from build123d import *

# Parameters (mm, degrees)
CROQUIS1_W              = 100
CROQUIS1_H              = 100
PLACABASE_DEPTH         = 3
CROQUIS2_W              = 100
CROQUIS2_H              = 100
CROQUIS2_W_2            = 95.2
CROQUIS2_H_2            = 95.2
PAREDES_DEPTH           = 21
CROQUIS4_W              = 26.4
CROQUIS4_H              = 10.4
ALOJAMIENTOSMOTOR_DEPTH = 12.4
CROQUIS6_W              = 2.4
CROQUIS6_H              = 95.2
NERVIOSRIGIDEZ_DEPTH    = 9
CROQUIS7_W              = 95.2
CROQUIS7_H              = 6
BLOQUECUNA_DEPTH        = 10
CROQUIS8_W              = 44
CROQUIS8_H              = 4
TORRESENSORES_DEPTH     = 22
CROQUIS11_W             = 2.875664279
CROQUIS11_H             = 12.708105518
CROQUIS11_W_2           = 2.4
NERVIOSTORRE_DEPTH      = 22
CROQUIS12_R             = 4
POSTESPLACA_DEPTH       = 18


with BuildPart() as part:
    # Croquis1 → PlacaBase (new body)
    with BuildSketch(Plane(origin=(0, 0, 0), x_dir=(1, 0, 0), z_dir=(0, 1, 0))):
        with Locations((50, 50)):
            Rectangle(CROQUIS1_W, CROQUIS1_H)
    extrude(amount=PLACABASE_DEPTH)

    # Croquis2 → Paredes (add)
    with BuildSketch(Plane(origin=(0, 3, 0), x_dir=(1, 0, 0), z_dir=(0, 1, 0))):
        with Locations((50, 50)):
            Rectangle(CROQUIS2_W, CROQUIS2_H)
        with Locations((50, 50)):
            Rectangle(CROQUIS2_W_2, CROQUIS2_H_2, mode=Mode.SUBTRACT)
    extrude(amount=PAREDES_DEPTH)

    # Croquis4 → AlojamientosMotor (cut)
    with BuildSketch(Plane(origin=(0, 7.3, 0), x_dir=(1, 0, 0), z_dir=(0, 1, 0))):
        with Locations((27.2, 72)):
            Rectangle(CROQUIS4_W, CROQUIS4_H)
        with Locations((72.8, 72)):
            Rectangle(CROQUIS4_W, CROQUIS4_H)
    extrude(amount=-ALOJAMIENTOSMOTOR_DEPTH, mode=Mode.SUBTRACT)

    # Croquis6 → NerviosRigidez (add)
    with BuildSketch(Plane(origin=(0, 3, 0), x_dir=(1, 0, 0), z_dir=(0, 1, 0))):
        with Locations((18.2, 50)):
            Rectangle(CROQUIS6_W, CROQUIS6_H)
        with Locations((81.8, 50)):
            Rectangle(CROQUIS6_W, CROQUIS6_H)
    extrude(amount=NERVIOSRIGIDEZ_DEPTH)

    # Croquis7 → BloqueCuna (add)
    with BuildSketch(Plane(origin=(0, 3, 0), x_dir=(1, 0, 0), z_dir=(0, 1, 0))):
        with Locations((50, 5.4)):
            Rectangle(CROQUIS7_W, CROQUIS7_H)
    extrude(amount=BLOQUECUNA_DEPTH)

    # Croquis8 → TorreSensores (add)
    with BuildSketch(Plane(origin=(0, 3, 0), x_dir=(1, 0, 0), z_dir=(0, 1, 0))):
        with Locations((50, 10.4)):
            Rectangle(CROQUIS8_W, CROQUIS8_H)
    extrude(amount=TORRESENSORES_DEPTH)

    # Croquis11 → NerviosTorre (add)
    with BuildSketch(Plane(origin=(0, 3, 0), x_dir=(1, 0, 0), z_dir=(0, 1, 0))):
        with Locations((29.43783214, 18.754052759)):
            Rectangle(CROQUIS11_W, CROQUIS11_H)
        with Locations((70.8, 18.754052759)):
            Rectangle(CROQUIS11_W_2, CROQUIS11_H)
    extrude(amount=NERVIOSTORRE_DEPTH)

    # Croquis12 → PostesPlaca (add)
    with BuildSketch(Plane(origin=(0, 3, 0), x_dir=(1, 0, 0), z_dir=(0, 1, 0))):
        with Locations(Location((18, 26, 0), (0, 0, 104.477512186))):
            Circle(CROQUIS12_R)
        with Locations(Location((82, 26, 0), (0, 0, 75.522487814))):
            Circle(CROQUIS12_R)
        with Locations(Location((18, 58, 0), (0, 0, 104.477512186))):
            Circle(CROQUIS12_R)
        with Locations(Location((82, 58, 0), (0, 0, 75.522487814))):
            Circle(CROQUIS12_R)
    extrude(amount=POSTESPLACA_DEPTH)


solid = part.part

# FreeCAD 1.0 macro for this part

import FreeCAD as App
import Part
import Sketcher
Q = App.Units.Quantity

doc = App.newDocument("Part")
body = doc.addObject("PartDesign::Body", "Body")

# Sketch on XZ plane
sketch1 = body.newObject("Sketcher::SketchObject", "Sketch")
sketch1.AttachmentSupport = (doc.getObject("XZ_Plane"), [""])
sketch1.MapMode = "FlatFace"
sketch1.addGeometry([
    Part.LineSegment(App.Vector(0, -100, 0), App.Vector(0, 0, 0)),
    Part.LineSegment(App.Vector(0, 0, 0), App.Vector(100, 0, 0)),
    Part.LineSegment(App.Vector(100, 0, 0), App.Vector(100, -100, 0)),
    Part.LineSegment(App.Vector(100, -100, 0), App.Vector(0, -100, 0)),
], False)
sketch1.addConstraint([
    Sketcher.Constraint("Coincident", 0, 2, 1, 1),
    Sketcher.Constraint("Coincident", 1, 2, 2, 1),
    Sketcher.Constraint("Coincident", 2, 2, 3, 1),
    Sketcher.Constraint("Coincident", 3, 2, 0, 1),
    Sketcher.Constraint("Vertical", 0),
    Sketcher.Constraint("Horizontal", 1),
    Sketcher.Constraint("Vertical", 2),
    Sketcher.Constraint("Horizontal", 3),
    Sketcher.Constraint("Coincident", 0, 2, -1, 1),
    Sketcher.Constraint("Equal", 3, 0),
    Sketcher.Constraint("DistanceX", 1, 1, 1, 2, Q("100 mm")),
])
pad1 = body.newObject("PartDesign::Pad", "Pad")
pad1.Profile = sketch1
pad1.Length = 3
pad1.Reversed = True

# Sketch on XZ plane
sketch2 = body.newObject("Sketcher::SketchObject", "Sketch001")
sketch2.AttachmentSupport = (doc.getObject("XZ_Plane"), [""])
sketch2.MapMode = "FlatFace"
sketch2.AttachmentOffset = App.Placement(App.Vector(0, 0, -3), App.Rotation())
sketch2.addGeometry([
    Part.LineSegment(App.Vector(0, -100, 0), App.Vector(0, 0, 0)),  # 0
    Part.LineSegment(App.Vector(0, 0, 0), App.Vector(100, 0, 0)),  # 1
    Part.LineSegment(App.Vector(100, 0, 0), App.Vector(100, -100, 0)),  # 2
    Part.LineSegment(App.Vector(100, -100, 0), App.Vector(0, -100, 0)),  # 3
    Part.LineSegment(App.Vector(98, -2, 0), App.Vector(2, -2, 0)),  # 4
    Part.LineSegment(App.Vector(2, -2, 0), App.Vector(2, -98, 0)),  # 5
    Part.LineSegment(App.Vector(2, -98, 0), App.Vector(98, -98, 0)),  # 6
    Part.LineSegment(App.Vector(98, -98, 0), App.Vector(98, -2, 0)),  # 7
], False)
sketch2.addConstraint([
    Sketcher.Constraint("Coincident", 0, 2, 1, 1),
    Sketcher.Constraint("Coincident", 1, 2, 2, 1),
    Sketcher.Constraint("Coincident", 2, 2, 3, 1),
    Sketcher.Constraint("Coincident", 3, 2, 0, 1),
    Sketcher.Constraint("Coincident", 4, 2, 5, 1),
    Sketcher.Constraint("Coincident", 5, 2, 6, 1),
    Sketcher.Constraint("Coincident", 6, 2, 7, 1),
    Sketcher.Constraint("Coincident", 7, 2, 4, 1),
    Sketcher.Constraint("Vertical", 0),
    Sketcher.Constraint("Horizontal", 1),
    Sketcher.Constraint("Vertical", 2),
    Sketcher.Constraint("Horizontal", 3),
    Sketcher.Constraint("Horizontal", 4),
    Sketcher.Constraint("Vertical", 5),
    Sketcher.Constraint("Horizontal", 6),
    Sketcher.Constraint("Vertical", 7),
    Sketcher.Constraint("Coincident", 0, 2, -1, 1),
    Sketcher.Constraint("Equal", 3, 0),
    Sketcher.Constraint("Equal", 6, 5),
    Sketcher.Constraint("DistanceX", 1, 1, 1, 2, Q("100 mm")),
    Sketcher.Constraint("DistanceX", 4, 2, 4, 1, Q("95.2 mm")),
    Sketcher.Constraint("DistanceX", -1, 1, 4, 2, Q("2.4 mm")),
    Sketcher.Constraint("DistanceY", 4, 2, -1, 1, Q("2.4 mm")),
])
pad2 = body.newObject("PartDesign::Pad", "Pad001")
pad2.Profile = sketch2
pad2.Length = 21
pad2.Reversed = True

# Sketch on XZ plane
sketch3 = body.newObject("Sketcher::SketchObject", "Sketch002")
sketch3.AttachmentSupport = (doc.getObject("XZ_Plane"), [""])
sketch3.MapMode = "FlatFace"
sketch3.AttachmentOffset = App.Placement(App.Vector(0, 0, -7.3), App.Rotation())
sketch3.addGeometry([
    Part.LineSegment(App.Vector(14, -77, 0), App.Vector(14, -67, 0)),  # 0
    Part.LineSegment(App.Vector(14, -67, 0), App.Vector(40, -67, 0)),  # 1
    Part.LineSegment(App.Vector(40, -67, 0), App.Vector(40, -77, 0)),  # 2
    Part.LineSegment(App.Vector(40, -77, 0), App.Vector(14, -77, 0)),  # 3
    Part.LineSegment(App.Vector(60, -77, 0), App.Vector(60, -67, 0)),  # 4
    Part.LineSegment(App.Vector(60, -67, 0), App.Vector(86, -67, 0)),  # 5
    Part.LineSegment(App.Vector(86, -67, 0), App.Vector(86, -77, 0)),  # 6
    Part.LineSegment(App.Vector(86, -77, 0), App.Vector(60, -77, 0)),  # 7
], False)
sketch3.addConstraint([
    Sketcher.Constraint("Coincident", 0, 2, 1, 1),
    Sketcher.Constraint("Coincident", 1, 2, 2, 1),
    Sketcher.Constraint("Coincident", 2, 2, 3, 1),
    Sketcher.Constraint("Coincident", 3, 2, 0, 1),
    Sketcher.Constraint("Coincident", 4, 2, 5, 1),
    Sketcher.Constraint("Coincident", 5, 2, 6, 1),
    Sketcher.Constraint("Coincident", 6, 2, 7, 1),
    Sketcher.Constraint("Coincident", 7, 2, 4, 1),
    Sketcher.Constraint("Vertical", 0),
    Sketcher.Constraint("Horizontal", 1),
    Sketcher.Constraint("Vertical", 2),
    Sketcher.Constraint("Horizontal", 3),
    Sketcher.Constraint("Vertical", 4),
    Sketcher.Constraint("Horizontal", 5),
    Sketcher.Constraint("Vertical", 6),
    Sketcher.Constraint("Horizontal", 7),
    Sketcher.Constraint("Horizontal", 1, 2, 4, 2),
    Sketcher.Constraint("Horizontal", 3, 2, 6, 2),
    Sketcher.Constraint("Equal", 3, 5),
    Sketcher.Constraint("DistanceX", 1, 1, 1, 2, Q("26.4 mm")),
    Sketcher.Constraint("DistanceY", 0, 1, 0, 2, Q("10.4 mm")),
    Sketcher.Constraint("DistanceX", -1, 1, 0, 2, Q("14 mm")),
    Sketcher.Constraint("DistanceX", -1, 1, 5, 2, Q("86 mm")),
    Sketcher.Constraint("DistanceY", 0, 2, -1, 1, Q("66.8 mm")),
])
pocket1 = body.newObject("PartDesign::Pocket", "Pocket")
pocket1.Profile = sketch3
pocket1.Length = 12.4
pocket1.Reversed = True

# Sketch on XZ plane
sketch4 = body.newObject("Sketcher::SketchObject", "Sketch003")
sketch4.AttachmentSupport = (doc.getObject("XZ_Plane"), [""])
sketch4.MapMode = "FlatFace"
sketch4.AttachmentOffset = App.Placement(App.Vector(0, 0, -3), App.Rotation())
sketch4.addGeometry([
    Part.LineSegment(App.Vector(17, -97.6, 0), App.Vector(17, -2.4, 0)),  # 0
    Part.LineSegment(App.Vector(17, -2.4, 0), App.Vector(19.4, -2.4, 0)),  # 1
    Part.LineSegment(App.Vector(19.4, -2.4, 0), App.Vector(19.4, -97.6, 0)),  # 2
    Part.LineSegment(App.Vector(19.4, -97.6, 0), App.Vector(17, -97.6, 0)),  # 3
    Part.LineSegment(App.Vector(80.6, -97.6, 0), App.Vector(80.6, -2.4, 0)),  # 4
    Part.LineSegment(App.Vector(80.6, -2.4, 0), App.Vector(83, -2.4, 0)),  # 5
    Part.LineSegment(App.Vector(83, -2.4, 0), App.Vector(83, -97.6, 0)),  # 6
    Part.LineSegment(App.Vector(83, -97.6, 0), App.Vector(80.6, -97.6, 0)),  # 7
], False)
sketch4.addConstraint([
    Sketcher.Constraint("Coincident", 0, 2, 1, 1),
    Sketcher.Constraint("Coincident", 1, 2, 2, 1),
    Sketcher.Constraint("Coincident", 2, 2, 3, 1),
    Sketcher.Constraint("Coincident", 3, 2, 0, 1),
    Sketcher.Constraint("Coincident", 4, 2, 5, 1),
    Sketcher.Constraint("Coincident", 5, 2, 6, 1),
    Sketcher.Constraint("Coincident", 6, 2, 7, 1),
    Sketcher.Constraint("Coincident", 7, 2, 4, 1),
    Sketcher.Constraint("Vertical", 0),
    Sketcher.Constraint("Horizontal", 1),
    Sketcher.Constraint("Vertical", 2),
    Sketcher.Constraint("Horizontal", 3),
    Sketcher.Constraint("Vertical", 4),
    Sketcher.Constraint("Horizontal", 5),
    Sketcher.Constraint("Vertical", 6),
    Sketcher.Constraint("Horizontal", 7),
    Sketcher.Constraint("Horizontal", 1, 2, 4, 2),
    Sketcher.Constraint("Horizontal", 3, 2, 6, 2),
    Sketcher.Constraint("Equal", 3, 5),
    Sketcher.Constraint("DistanceX", 1, 1, 1, 2, Q("2.4 mm")),
    Sketcher.Constraint("DistanceY", 0, 1, 0, 2, Q("95.2 mm")),
    Sketcher.Constraint("DistanceX", -1, 1, 0, 2, Q("17 mm")),
    Sketcher.Constraint("DistanceX", -1, 1, 5, 2, Q("83 mm")),
    Sketcher.Constraint("DistanceY", 0, 2, -1, 1, Q("2.4 mm")),
])
pad3 = body.newObject("PartDesign::Pad", "Pad002")
pad3.Profile = sketch4
pad3.Length = 9
pad3.Reversed = True

# Sketch on XZ plane
sketch5 = body.newObject("Sketcher::SketchObject", "Sketch004")
sketch5.AttachmentSupport = (doc.getObject("XZ_Plane"), [""])
sketch5.MapMode = "FlatFace"
sketch5.AttachmentOffset = App.Placement(App.Vector(0, 0, -3), App.Rotation())
sketch5.addGeometry([
    Part.LineSegment(App.Vector(2, -8, 0), App.Vector(2, -2, 0)),
    Part.LineSegment(App.Vector(2, -2, 0), App.Vector(98, -2, 0)),
    Part.LineSegment(App.Vector(98, -2, 0), App.Vector(98, -8, 0)),
    Part.LineSegment(App.Vector(98, -8, 0), App.Vector(2, -8, 0)),
], False)
sketch5.addConstraint([
    Sketcher.Constraint("Coincident", 0, 2, 1, 1),
    Sketcher.Constraint("Coincident", 1, 2, 2, 1),
    Sketcher.Constraint("Coincident", 2, 2, 3, 1),
    Sketcher.Constraint("Coincident", 3, 2, 0, 1),
    Sketcher.Constraint("Vertical", 0),
    Sketcher.Constraint("Horizontal", 1),
    Sketcher.Constraint("Vertical", 2),
    Sketcher.Constraint("Horizontal", 3),
    Sketcher.Constraint("DistanceY", 0, 1, 0, 2, Q("6 mm")),
    Sketcher.Constraint("DistanceX", 1, 1, 1, 2, Q("95.2 mm")),
    Sketcher.Constraint("DistanceX", -1, 1, 0, 2, Q("2.4 mm")),
    Sketcher.Constraint("DistanceY", 0, 2, -1, 1, Q("2.4 mm")),
])
pad4 = body.newObject("PartDesign::Pad", "Pad003")
pad4.Profile = sketch5
pad4.Length = 10
pad4.Reversed = True

# Sketch on XZ plane
sketch6 = body.newObject("Sketcher::SketchObject", "Sketch005")
sketch6.AttachmentSupport = (doc.getObject("XZ_Plane"), [""])
sketch6.MapMode = "FlatFace"
sketch6.AttachmentOffset = App.Placement(App.Vector(0, 0, -3), App.Rotation())
sketch6.addGeometry([
    Part.LineSegment(App.Vector(28, -12.4, 0), App.Vector(28, -8.4, 0)),
    Part.LineSegment(App.Vector(28, -8.4, 0), App.Vector(72, -8.4, 0)),
    Part.LineSegment(App.Vector(72, -8.4, 0), App.Vector(72, -12.4, 0)),
    Part.LineSegment(App.Vector(72, -12.4, 0), App.Vector(28, -12.4, 0)),
], False)
sketch6.addConstraint([
    Sketcher.Constraint("Coincident", 0, 2, 1, 1),
    Sketcher.Constraint("Coincident", 1, 2, 2, 1),
    Sketcher.Constraint("Coincident", 2, 2, 3, 1),
    Sketcher.Constraint("Coincident", 3, 2, 0, 1),
    Sketcher.Constraint("Vertical", 0),
    Sketcher.Constraint("Horizontal", 1),
    Sketcher.Constraint("Vertical", 2),
    Sketcher.Constraint("Horizontal", 3),
    Sketcher.Constraint("DistanceX", 1, 1, 1, 2, Q("44 mm")),
    Sketcher.Constraint("DistanceY", 0, 1, 0, 2, Q("4 mm")),
    Sketcher.Constraint("DistanceX", -1, 1, 0, 2, Q("28 mm")),
    Sketcher.Constraint("DistanceY", 0, 2, -1, 1, Q("8.4 mm")),
])
pad5 = body.newObject("PartDesign::Pad", "Pad004")
pad5.Profile = sketch6
pad5.Length = 22
pad5.Reversed = True

# Sketch on XZ plane
sketch7 = body.newObject("Sketcher::SketchObject", "Sketch006")
sketch7.AttachmentSupport = (doc.getObject("XZ_Plane"), [""])
sketch7.MapMode = "FlatFace"
sketch7.AttachmentOffset = App.Placement(App.Vector(0, 0, -3), App.Rotation())
sketch7.addGeometry([
    Part.LineSegment(App.Vector(28, -25.1, 0), App.Vector(28, -12.4, 0)),  # 0
    Part.LineSegment(App.Vector(28, -12.4, 0), App.Vector(30.9, -12.4, 0)),  # 1
    Part.LineSegment(App.Vector(30.9, -12.4, 0), App.Vector(30.9, -25.1, 0)),  # 2
    Part.LineSegment(App.Vector(30.9, -25.1, 0), App.Vector(28, -25.1, 0)),  # 3
    Part.LineSegment(App.Vector(69.6, -25.1, 0), App.Vector(69.6, -12.4, 0)),  # 4
    Part.LineSegment(App.Vector(69.6, -12.4, 0), App.Vector(72, -12.4, 0)),  # 5
    Part.LineSegment(App.Vector(72, -12.4, 0), App.Vector(72, -25.1, 0)),  # 6
    Part.LineSegment(App.Vector(72, -25.1, 0), App.Vector(69.6, -25.1, 0)),  # 7
], False)
sketch7.addConstraint([
    Sketcher.Constraint("Coincident", 0, 2, 1, 1),
    Sketcher.Constraint("Coincident", 1, 2, 2, 1),
    Sketcher.Constraint("Coincident", 2, 2, 3, 1),
    Sketcher.Constraint("Coincident", 3, 2, 0, 1),
    Sketcher.Constraint("Coincident", 4, 2, 5, 1),
    Sketcher.Constraint("Coincident", 5, 2, 6, 1),
    Sketcher.Constraint("Coincident", 6, 2, 7, 1),
    Sketcher.Constraint("Coincident", 7, 2, 4, 1),
    Sketcher.Constraint("Vertical", 0),
    Sketcher.Constraint("Horizontal", 1),
    Sketcher.Constraint("Vertical", 2),
    Sketcher.Constraint("Horizontal", 3),
    Sketcher.Constraint("Vertical", 4),
    Sketcher.Constraint("Horizontal", 5),
    Sketcher.Constraint("Vertical", 6),
    Sketcher.Constraint("Horizontal", 7),
    Sketcher.Constraint("Horizontal", 1, 2, 4, 2),
    Sketcher.Constraint("Horizontal", 3, 2, 6, 2),
    Sketcher.Constraint("DistanceX", 5, 1, 5, 2, Q("2.4 mm")),
    Sketcher.Constraint("DistanceX", -1, 1, 0, 2, Q("28 mm")),
    Sketcher.Constraint("DistanceX", -1, 1, 5, 2, Q("72 mm")),
    Sketcher.Constraint("DistanceY", 0, 2, -1, 1, Q("12.4 mm")),
    Sketcher.Constraint("DistanceX", 1, 1, 1, 2, Q("2.875664 mm")),
    Sketcher.Constraint("DistanceY", 0, 1, 0, 2, Q("12.708106 mm")),
])
pad6 = body.newObject("PartDesign::Pad", "Pad005")
pad6.Profile = sketch7
pad6.Length = 22
pad6.Reversed = True

# Sketch on XZ plane
sketch8 = body.newObject("Sketcher::SketchObject", "Sketch007")
sketch8.AttachmentSupport = (doc.getObject("XZ_Plane"), [""])
sketch8.MapMode = "FlatFace"
sketch8.AttachmentOffset = App.Placement(App.Vector(0, 0, -3), App.Rotation())
sketch8.addGeometry([
    Part.Circle(App.Vector(18, -26, 0), App.Vector(0, 0, 1), 4),
    Part.Circle(App.Vector(82, -26, 0), App.Vector(0, 0, 1), 4),
    Part.Circle(App.Vector(18, -58, 0), App.Vector(0, 0, 1), 4),
    Part.Circle(App.Vector(82, -58, 0), App.Vector(0, 0, 1), 4),
], False)
sketch8.addConstraint([
    Sketcher.Constraint("Equal", 0, 1),
    Sketcher.Constraint("Equal", 1, 2),
    Sketcher.Constraint("Equal", 2, 3),
    Sketcher.Constraint("Horizontal", 0, 3, 1, 3),
    Sketcher.Constraint("Horizontal", 2, 3, 3, 3),
    Sketcher.Constraint("Vertical", 0, 3, 2, 3),
    Sketcher.Constraint("Vertical", 1, 3, 3, 3),
    Sketcher.Constraint("Diameter", 0, Q("8 mm")),
    Sketcher.Constraint("DistanceX", -1, 1, 0, 3, Q("18 mm")),
    Sketcher.Constraint("DistanceY", 0, 3, -1, 1, Q("26 mm")),
    Sketcher.Constraint("DistanceX", -1, 1, 1, 3, Q("82 mm")),
    Sketcher.Constraint("DistanceY", 2, 3, -1, 1, Q("58 mm")),
])
pad7 = body.newObject("PartDesign::Pad", "Pad006")
pad7.Profile = sketch8
pad7.Length = 18
pad7.Reversed = True

doc.recompute()
